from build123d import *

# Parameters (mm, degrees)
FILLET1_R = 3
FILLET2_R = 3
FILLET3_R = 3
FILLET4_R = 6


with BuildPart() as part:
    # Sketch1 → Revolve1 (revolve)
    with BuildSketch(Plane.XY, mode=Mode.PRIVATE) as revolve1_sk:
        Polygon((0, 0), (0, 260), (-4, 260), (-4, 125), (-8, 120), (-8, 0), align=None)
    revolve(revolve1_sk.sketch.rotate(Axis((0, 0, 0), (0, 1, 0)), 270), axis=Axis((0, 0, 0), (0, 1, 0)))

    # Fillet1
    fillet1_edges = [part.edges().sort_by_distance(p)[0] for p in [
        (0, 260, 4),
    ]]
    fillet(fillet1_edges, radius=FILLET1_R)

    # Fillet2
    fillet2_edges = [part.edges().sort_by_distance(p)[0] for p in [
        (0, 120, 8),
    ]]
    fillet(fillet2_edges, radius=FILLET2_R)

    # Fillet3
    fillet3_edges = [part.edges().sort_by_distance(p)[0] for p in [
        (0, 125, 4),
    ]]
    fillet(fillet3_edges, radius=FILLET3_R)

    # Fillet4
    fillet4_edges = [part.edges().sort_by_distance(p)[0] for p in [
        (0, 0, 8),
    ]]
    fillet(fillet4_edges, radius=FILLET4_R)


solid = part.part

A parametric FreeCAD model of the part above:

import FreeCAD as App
import Part
import Sketcher


def edges_at(feature, points):
    """Names of the edges that pass closest to the given points."""
    edges = feature.Shape.Edges
    near = lambda p: min(range(len(edges)), key=lambda i: edges[i].distToShape(Part.Vertex(*p))[0])
    return sorted({f"Edge{near(p) + 1}" for p in points})


def add_polygon(sketch, points):
    """Adds a closed chain of lines whose ends are joined by coincident constraints."""
    first, n = sketch.GeometryCount, len(points)
    for a, b in zip(points, points[1:] + points[:1]):
        sketch.addGeometry(Part.LineSegment(App.Vector(*a, 0), App.Vector(*b, 0)), False)
    for i in range(n):
        sketch.addConstraint(Sketcher.Constraint("Coincident", first + i, 2, first + (i + 1) % n, 1))

doc = App.newDocument("Part")
body = doc.addObject("PartDesign::Body", "Body")

# Sketch on XY plane
sketch1 = doc.addObject("Sketcher::SketchObject", "Sketch")
body.addObject(sketch1)
sketch1.AttachmentSupport = (doc.XY_Plane, [""])
sketch1.MapMode = "FlatFace"
add_polygon(sketch1, [(0, 0), (0, 260), (-4, 260), (-4, 125), (-8, 120), (-8, 0)])  # lines 0-5
sketch1.addConstraint([
    Sketcher.Constraint("Vertical", 0),
    Sketcher.Constraint("Horizontal", 1),
    Sketcher.Constraint("Vertical", 2),
    Sketcher.Constraint("Vertical", 4),
    Sketcher.Constraint("Horizontal", 5),
    Sketcher.Constraint("Coincident", 5, 2, -1, 1),
    Sketcher.Constraint("DistanceX", 1, 2, 1, 1, 4.0),
    Sketcher.Constraint("DistanceX", 5, 1, 5, 2, 8.0),
    Sketcher.Constraint("DistanceY", 0, 1, 0, 2, 260.0),
    Sketcher.Constraint("DistanceY", 2, 2, 2, 1, 135.0),
    Sketcher.Constraint("DistanceY", 4, 2, 4, 1, 120.0),
])
revolution = doc.addObject("PartDesign::Revolution", "Revolution")
body.addObject(revolution)
revolution.Profile = sketch1
revolution.ReferenceAxis = (sketch1, ["V_Axis"])
revolution.Angle = 360
doc.recompute()

fillet = doc.addObject("PartDesign::Fillet", "Fillet")
body.addObject(fillet)
fillet.Base = (revolution, edges_at(revolution, [(0, 260, 4)]))
fillet.Radius = 3
doc.recompute()

fillet2 = doc.addObject("PartDesign::Fillet", "Fillet001")
body.addObject(fillet2)
fillet2.Base = (fillet, edges_at(fillet, [(0, 120, 8)]))
fillet2.Radius = 3
doc.recompute()

fillet3 = doc.addObject("PartDesign::Fillet", "Fillet002")
body.addObject(fillet3)
fillet3.Base = (fillet2, edges_at(fillet2, [(0, 125, 4)]))
fillet3.Radius = 3
doc.recompute()

fillet4 = doc.addObject("PartDesign::Fillet", "Fillet003")
body.addObject(fillet4)
fillet4.Base = (fillet3, edges_at(fillet3, [(0, 0, 8)]))
fillet4.Radius = 6

doc.recompute()
